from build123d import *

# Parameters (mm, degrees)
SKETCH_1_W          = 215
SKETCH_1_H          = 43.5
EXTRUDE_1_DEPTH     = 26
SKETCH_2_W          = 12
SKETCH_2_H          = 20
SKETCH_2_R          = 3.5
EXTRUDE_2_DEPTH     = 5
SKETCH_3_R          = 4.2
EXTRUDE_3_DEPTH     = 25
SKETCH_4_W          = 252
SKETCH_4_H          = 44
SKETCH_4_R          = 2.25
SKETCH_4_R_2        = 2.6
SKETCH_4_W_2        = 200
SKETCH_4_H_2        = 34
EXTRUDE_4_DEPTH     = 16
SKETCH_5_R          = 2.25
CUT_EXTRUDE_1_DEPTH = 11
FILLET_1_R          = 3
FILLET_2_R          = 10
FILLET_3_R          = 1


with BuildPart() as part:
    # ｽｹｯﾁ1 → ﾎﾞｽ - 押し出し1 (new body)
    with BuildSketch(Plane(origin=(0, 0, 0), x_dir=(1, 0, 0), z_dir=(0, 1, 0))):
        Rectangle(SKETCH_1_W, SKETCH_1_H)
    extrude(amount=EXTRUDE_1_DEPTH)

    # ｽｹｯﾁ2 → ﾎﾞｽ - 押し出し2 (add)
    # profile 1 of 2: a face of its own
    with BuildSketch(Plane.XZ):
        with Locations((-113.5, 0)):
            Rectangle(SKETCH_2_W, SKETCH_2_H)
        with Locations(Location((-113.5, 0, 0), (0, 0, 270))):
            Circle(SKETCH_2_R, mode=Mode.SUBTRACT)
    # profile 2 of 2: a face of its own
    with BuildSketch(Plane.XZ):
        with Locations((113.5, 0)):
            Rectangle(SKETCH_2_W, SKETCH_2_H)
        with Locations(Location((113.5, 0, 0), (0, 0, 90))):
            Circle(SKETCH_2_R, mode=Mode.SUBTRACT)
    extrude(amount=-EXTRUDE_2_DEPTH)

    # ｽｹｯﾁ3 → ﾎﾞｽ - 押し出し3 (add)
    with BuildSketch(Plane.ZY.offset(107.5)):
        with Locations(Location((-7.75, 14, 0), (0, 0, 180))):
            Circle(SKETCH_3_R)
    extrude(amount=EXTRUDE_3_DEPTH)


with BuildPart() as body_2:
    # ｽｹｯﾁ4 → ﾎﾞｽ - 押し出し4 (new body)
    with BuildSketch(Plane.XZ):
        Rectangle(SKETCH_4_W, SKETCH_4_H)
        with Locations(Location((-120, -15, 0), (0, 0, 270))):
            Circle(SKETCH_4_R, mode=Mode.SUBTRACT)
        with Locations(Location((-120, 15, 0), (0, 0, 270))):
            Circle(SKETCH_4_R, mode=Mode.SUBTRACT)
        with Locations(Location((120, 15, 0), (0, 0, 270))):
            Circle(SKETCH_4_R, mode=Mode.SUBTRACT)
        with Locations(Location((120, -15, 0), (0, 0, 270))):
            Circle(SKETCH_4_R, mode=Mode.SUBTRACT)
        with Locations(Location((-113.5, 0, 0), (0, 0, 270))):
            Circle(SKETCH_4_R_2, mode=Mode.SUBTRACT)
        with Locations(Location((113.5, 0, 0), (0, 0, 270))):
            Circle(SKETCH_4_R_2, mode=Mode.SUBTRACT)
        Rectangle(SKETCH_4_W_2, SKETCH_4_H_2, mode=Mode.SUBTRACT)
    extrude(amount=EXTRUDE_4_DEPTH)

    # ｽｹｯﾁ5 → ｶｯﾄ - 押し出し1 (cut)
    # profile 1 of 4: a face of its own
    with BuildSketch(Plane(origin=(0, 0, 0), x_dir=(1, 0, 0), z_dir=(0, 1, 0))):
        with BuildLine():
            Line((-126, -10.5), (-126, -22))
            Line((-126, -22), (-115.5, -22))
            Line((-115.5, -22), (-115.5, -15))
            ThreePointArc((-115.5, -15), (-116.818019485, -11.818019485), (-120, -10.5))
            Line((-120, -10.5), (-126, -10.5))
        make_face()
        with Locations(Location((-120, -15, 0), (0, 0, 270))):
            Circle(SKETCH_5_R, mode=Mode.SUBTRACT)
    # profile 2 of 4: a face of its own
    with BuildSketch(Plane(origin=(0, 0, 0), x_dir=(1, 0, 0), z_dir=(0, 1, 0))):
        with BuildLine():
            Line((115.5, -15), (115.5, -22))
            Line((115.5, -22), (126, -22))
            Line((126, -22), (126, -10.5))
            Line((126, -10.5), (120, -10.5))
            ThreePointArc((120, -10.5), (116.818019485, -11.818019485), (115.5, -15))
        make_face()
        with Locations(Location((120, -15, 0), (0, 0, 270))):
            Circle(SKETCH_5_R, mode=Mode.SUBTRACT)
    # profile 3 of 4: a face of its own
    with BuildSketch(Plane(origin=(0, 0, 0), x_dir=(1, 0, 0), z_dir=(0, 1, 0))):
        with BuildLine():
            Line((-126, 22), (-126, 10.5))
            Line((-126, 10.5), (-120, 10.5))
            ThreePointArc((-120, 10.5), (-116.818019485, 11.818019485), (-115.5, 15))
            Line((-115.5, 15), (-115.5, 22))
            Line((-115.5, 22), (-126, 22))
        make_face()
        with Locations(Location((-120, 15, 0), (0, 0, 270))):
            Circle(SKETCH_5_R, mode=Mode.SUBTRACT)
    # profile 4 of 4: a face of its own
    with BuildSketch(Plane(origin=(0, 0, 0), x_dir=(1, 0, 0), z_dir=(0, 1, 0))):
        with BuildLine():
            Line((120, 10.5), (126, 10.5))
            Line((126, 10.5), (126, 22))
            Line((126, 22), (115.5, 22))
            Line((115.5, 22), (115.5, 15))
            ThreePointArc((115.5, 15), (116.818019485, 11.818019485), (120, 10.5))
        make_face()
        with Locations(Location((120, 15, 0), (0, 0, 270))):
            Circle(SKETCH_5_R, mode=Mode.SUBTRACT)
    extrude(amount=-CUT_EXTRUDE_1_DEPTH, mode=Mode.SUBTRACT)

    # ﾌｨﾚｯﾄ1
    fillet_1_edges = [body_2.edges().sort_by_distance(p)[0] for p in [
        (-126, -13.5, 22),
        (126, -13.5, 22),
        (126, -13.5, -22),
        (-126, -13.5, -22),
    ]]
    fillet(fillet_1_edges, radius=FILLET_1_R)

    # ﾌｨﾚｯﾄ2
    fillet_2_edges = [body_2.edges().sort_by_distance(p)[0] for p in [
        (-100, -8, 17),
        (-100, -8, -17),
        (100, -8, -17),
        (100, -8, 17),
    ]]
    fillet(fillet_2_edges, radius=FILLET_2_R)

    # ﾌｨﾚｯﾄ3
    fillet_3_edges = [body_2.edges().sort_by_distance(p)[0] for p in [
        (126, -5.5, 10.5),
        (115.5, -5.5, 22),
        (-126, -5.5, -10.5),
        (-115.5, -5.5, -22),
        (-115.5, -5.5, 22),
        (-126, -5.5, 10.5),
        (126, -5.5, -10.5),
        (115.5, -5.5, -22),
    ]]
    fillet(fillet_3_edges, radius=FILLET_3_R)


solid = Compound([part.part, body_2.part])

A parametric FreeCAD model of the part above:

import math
import FreeCAD as App
import Part
import Sketcher

V = App.Vector
Q = App.Units.Quantity


def edges_at(feature, points):
    """Names of the edges that pass closest to the given points."""
    edges = feature.Shape.Edges
    near = lambda p: min(range(len(edges)), key=lambda i: edges[i].distToShape(Part.Vertex(*p))[0])
    return sorted({f"Edge{near(p) + 1}" for p in points})

doc = App.newDocument("Part")
body = doc.addObject("PartDesign::Body", "Body")

sketch1 = body.newObject("Sketcher::SketchObject", "Sketch")
sketch1.AttachmentSupport = (doc.getObject("XZ_Plane"), [""])
sketch1.MapMode = "FlatFace"
sketch1.addGeometry(Part.LineSegment(V(-107.5, -21.75, 0), V(-107.5, 21.75, 0)), False)
sketch1.addGeometry(Part.LineSegment(V(-107.5, 21.75, 0), V(107.5, 21.75, 0)), False)
sketch1.addGeometry(Part.LineSegment(V(107.5, 21.75, 0), V(107.5, -21.75, 0)), False)
sketch1.addGeometry(Part.LineSegment(V(107.5, -21.75, 0), V(-107.5, -21.75, 0)), False)
sketch1.addConstraint(Sketcher.Constraint("Coincident", 0, 2, 1, 1))
sketch1.addConstraint(Sketcher.Constraint("Coincident", 1, 2, 2, 1))
sketch1.addConstraint(Sketcher.Constraint("Coincident", 2, 2, 3, 1))
sketch1.addConstraint(Sketcher.Constraint("Coincident", 3, 2, 0, 1))
sketch1.addConstraint(Sketcher.Constraint("Vertical", 0))
sketch1.addConstraint(Sketcher.Constraint("Horizontal", 1))
sketch1.addConstraint(Sketcher.Constraint("Vertical", 2))
sketch1.addConstraint(Sketcher.Constraint("Horizontal", 3))
sketch1.addConstraint(Sketcher.Constraint("Symmetric", 0, 2, 2, 2, -1, 1))
sketch1.addConstraint(Sketcher.Constraint("DistanceX", 1, 1, 1, 2, Q("215 mm")))
sketch1.addConstraint(Sketcher.Constraint("DistanceY", 0, 1, 0, 2, Q("43.5 mm")))
pad1 = body.newObject("PartDesign::Pad", "Pad")
pad1.Profile = sketch1
pad1.Length = 26
pad1.Reversed = True

sketch2 = body.newObject("Sketcher::SketchObject", "Sketch001")
sketch2.AttachmentSupport = (doc.getObject("XZ_Plane"), [""])
sketch2.MapMode = "FlatFace"
sketch2.addGeometry(Part.LineSegment(V(-119.5, 10, 0), V(-119.5, -10, 0)), False)
sketch2.addGeometry(Part.LineSegment(V(-119.5, -10, 0), V(-107.5, -10, 0)), False)
sketch2.addGeometry(Part.LineSegment(V(-107.5, -10, 0), V(-107.5, 10, 0)), False)
sketch2.addGeometry(Part.LineSegment(V(-107.5, 10, 0), V(-119.5, 10, 0)), False)
sketch2.addGeometry(Part.Circle(V(-113.5, 0, 0), V(0, 0, 1), 3.5), False)
sketch2.addGeometry(Part.LineSegment(V(107.5, 10, 0), V(107.5, -10, 0)), False)
sketch2.addGeometry(Part.LineSegment(V(107.5, -10, 0), V(119.5, -10, 0)), False)
sketch2.addGeometry(Part.LineSegment(V(119.5, -10, 0), V(119.5, 10, 0)), False)
sketch2.addGeometry(Part.LineSegment(V(119.5, 10, 0), V(107.5, 10, 0)), False)
sketch2.addGeometry(Part.Circle(V(113.5, 0, 0), V(0, 0, 1), 3.5), False)
sketch2.addConstraint(Sketcher.Constraint("Coincident", 0, 2, 1, 1))
sketch2.addConstraint(Sketcher.Constraint("Coincident", 1, 2, 2, 1))
sketch2.addConstraint(Sketcher.Constraint("Coincident", 2, 2, 3, 1))
sketch2.addConstraint(Sketcher.Constraint("Coincident", 3, 2, 0, 1))
sketch2.addConstraint(Sketcher.Constraint("Coincident", 5, 2, 6, 1))
sketch2.addConstraint(Sketcher.Constraint("Coincident", 6, 2, 7, 1))
sketch2.addConstraint(Sketcher.Constraint("Coincident", 7, 2, 8, 1))
sketch2.addConstraint(Sketcher.Constraint("Coincident", 8, 2, 5, 1))
sketch2.addConstraint(Sketcher.Constraint("Vertical", 0))
sketch2.addConstraint(Sketcher.Constraint("Horizontal", 1))
sketch2.addConstraint(Sketcher.Constraint("Vertical", 2))
sketch2.addConstraint(Sketcher.Constraint("Horizontal", 3))
sketch2.addConstraint(Sketcher.Constraint("Vertical", 5))
sketch2.addConstraint(Sketcher.Constraint("Horizontal", 6))
sketch2.addConstraint(Sketcher.Constraint("Vertical", 7))
sketch2.addConstraint(Sketcher.Constraint("Horizontal", 8))
sketch2.addConstraint(Sketcher.Constraint("Equal", 4, 9))
sketch2.addConstraint(Sketcher.Constraint("Symmetric", 4, 3, 9, 3, -1, 1))
sketch2.addConstraint(Sketcher.Constraint("Symmetric", 2, 2, 5, 2, -1, 1))
sketch2.addConstraint(Sketcher.Constraint("Symmetric", 0, 2, 7, 2, -1, 1))
sketch2.addConstraint(Sketcher.Constraint("PointOnObject", 4, 3, -1))
sketch2.addConstraint(Sketcher.Constraint("Horizontal", 1, 2, 5, 2))
sketch2.addConstraint(Sketcher.Constraint("Diameter", 4, Q("7 mm")))
sketch2.addConstraint(Sketcher.Constraint("DistanceX", 1, 1, 1, 2, Q("12 mm")))
sketch2.addConstraint(Sketcher.Constraint("DistanceY", 0, 2, 0, 1, Q("20 mm")))
sketch2.addConstraint(Sketcher.Constraint("DistanceX", 4, 3, 9, 3, Q("227 mm")))
sketch2.addConstraint(Sketcher.Constraint("DistanceX", 0, 2, 4, 3, Q("6 mm")))
pad2 = body.newObject("PartDesign::Pad", "Pad001")
pad2.Profile = sketch2
pad2.Length = 5
pad2.Reversed = True

sketch3 = body.newObject("Sketcher::SketchObject", "Sketch002")
sketch3.AttachmentSupport = (doc.getObject("YZ_Plane"), [""])
sketch3.MapMode = "FlatFace"
sketch3.AttachmentOffset = App.Placement(V(0, 0, -107.5), App.Rotation())
sketch3.addGeometry(Part.Circle(V(14, -7.75, 0), V(0, 0, 1), 4.2), False)
sketch3.addConstraint(Sketcher.Constraint("Diameter", 0, Q("8.4 mm")))
sketch3.addConstraint(Sketcher.Constraint("DistanceX", -1, 1, 0, 3, Q("14 mm")))
sketch3.addConstraint(Sketcher.Constraint("DistanceY", 0, 3, -1, 1, Q("7.75 mm")))
pad3 = body.newObject("PartDesign::Pad", "Pad002")
pad3.Profile = sketch3
pad3.Length = 25
pad3.Reversed = True
body2 = doc.addObject("PartDesign::Body", "Body001")

sketch4 = body2.newObject("Sketcher::SketchObject", "Sketch003")
sketch4.AttachmentSupport = (doc.getObject("XZ_Plane001"), [""])
sketch4.MapMode = "FlatFace"
sketch4.addGeometry(Part.LineSegment(V(-126, 22, 0), V(-126, -22, 0)), False)
sketch4.addGeometry(Part.LineSegment(V(-126, -22, 0), V(126, -22, 0)), False)
sketch4.addGeometry(Part.LineSegment(V(126, -22, 0), V(126, 22, 0)), False)
sketch4.addGeometry(Part.LineSegment(V(126, 22, 0), V(-126, 22, 0)), False)
sketch4.addGeometry(Part.Circle(V(-120, -15, 0), V(0, 0, 1), 2.25), False)
sketch4.addGeometry(Part.Circle(V(120, -15, 0), V(0, 0, 1), 2.25), False)
sketch4.addGeometry(Part.Circle(V(-113.5, 0, 0), V(0, 0, 1), 2.6), False)
sketch4.addGeometry(Part.Circle(V(-120, 15, 0), V(0, 0, 1), 2.25), False)
sketch4.addGeometry(Part.LineSegment(V(100, -17, 0), V(-100, -17, 0)), False)
sketch4.addGeometry(Part.LineSegment(V(-100, -17, 0), V(-100, 17, 0)), False)
sketch4.addGeometry(Part.LineSegment(V(-100, 17, 0), V(100, 17, 0)), False)
sketch4.addGeometry(Part.LineSegment(V(100, 17, 0), V(100, -17, 0)), False)
sketch4.addGeometry(Part.Circle(V(113.5, 0, 0), V(0, 0, 1), 2.6), False)
sketch4.addGeometry(Part.Circle(V(120, 15, 0), V(0, 0, 1), 2.25), False)
sketch4.addConstraint(Sketcher.Constraint("Coincident", 0, 2, 1, 1))
sketch4.addConstraint(Sketcher.Constraint("Coincident", 1, 2, 2, 1))
sketch4.addConstraint(Sketcher.Constraint("Coincident", 2, 2, 3, 1))
sketch4.addConstraint(Sketcher.Constraint("Coincident", 3, 2, 0, 1))
sketch4.addConstraint(Sketcher.Constraint("Coincident", 8, 2, 9, 1))
sketch4.addConstraint(Sketcher.Constraint("Coincident", 9, 2, 10, 1))
sketch4.addConstraint(Sketcher.Constraint("Coincident", 10, 2, 11, 1))
sketch4.addConstraint(Sketcher.Constraint("Coincident", 11, 2, 8, 1))
sketch4.addConstraint(Sketcher.Constraint("Vertical", 0))
sketch4.addConstraint(Sketcher.Constraint("Horizontal", 1))
sketch4.addConstraint(Sketcher.Constraint("Vertical", 2))
sketch4.addConstraint(Sketcher.Constraint("Horizontal", 3))
sketch4.addConstraint(Sketcher.Constraint("Horizontal", 8))
sketch4.addConstraint(Sketcher.Constraint("Vertical", 9))
sketch4.addConstraint(Sketcher.Constraint("Horizontal", 10))
sketch4.addConstraint(Sketcher.Constraint("Vertical", 11))
sketch4.addConstraint(Sketcher.Constraint("Equal", 4, 5))
sketch4.addConstraint(Sketcher.Constraint("Equal", 5, 7))
sketch4.addConstraint(Sketcher.Constraint("Equal", 6, 12))
sketch4.addConstraint(Sketcher.Constraint("Equal", 7, 13))
sketch4.addConstraint(Sketcher.Constraint("Symmetric", 5, 3, 7, 3, -1, 1))
sketch4.addConstraint(Sketcher.Constraint("Symmetric", 6, 3, 12, 3, -1, 1))
sketch4.addConstraint(Sketcher.Constraint("Symmetric", 4, 3, 13, 3, -1, 1))
sketch4.addConstraint(Sketcher.Constraint("Symmetric", 0, 2, 2, 2, -1, 1))
sketch4.addConstraint(Sketcher.Constraint("Symmetric", 8, 2, 10, 2, -1, 1))
sketch4.addConstraint(Sketcher.Constraint("Symmetric", 4, 3, 5, 3, -2))
sketch4.addConstraint(Sketcher.Constraint("PointOnObject", 6, 3, -1))
sketch4.addConstraint(Sketcher.Constraint("Diameter", 4, Q("4.5 mm")))
sketch4.addConstraint(Sketcher.Constraint("Diameter", 6, Q("5.2 mm")))
sketch4.addConstraint(Sketcher.Constraint("DistanceX", 1, 1, 1, 2, Q("252 mm")))
sketch4.addConstraint(Sketcher.Constraint("DistanceX", 8, 2, 8, 1, Q("200 mm")))
sketch4.addConstraint(Sketcher.Constraint("DistanceY", 0, 2, 0, 1, Q("44 mm")))
sketch4.addConstraint(Sketcher.Constraint("DistanceY", 9, 1, 9, 2, Q("34 mm")))
sketch4.addConstraint(Sketcher.Constraint("DistanceX", 4, 3, -1, 1, Q("120 mm")))
sketch4.addConstraint(Sketcher.Constraint("DistanceY", 4, 3, -1, 1, Q("15 mm")))
sketch4.addConstraint(Sketcher.Constraint("DistanceX", 6, 3, 12, 3, Q("227 mm")))
pad4 = body2.newObject("PartDesign::Pad", "Pad003")
pad4.Profile = sketch4
pad4.Length = 16

sketch5 = body2.newObject("Sketcher::SketchObject", "Sketch004")
sketch5.AttachmentSupport = (doc.getObject("XZ_Plane001"), [""])
sketch5.MapMode = "FlatFace"
sketch5.addGeometry(Part.LineSegment(V(-126, 10.5, 0), V(-126, 22, 0)), False)
sketch5.addGeometry(Part.LineSegment(V(-126, 22, 0), V(-115.5, 22, 0)), False)
sketch5.addGeometry(Part.LineSegment(V(-115.5, 22, 0), V(-115.5, 15, 0)), False)
sketch5.addGeometry(Part.ArcOfCircle(Part.Circle(V(-120, 15, 0), V(0, 0, 1), 4.5), math.radians(-90), math.radians(0)), False)
sketch5.addGeometry(Part.LineSegment(V(-120, 10.5, 0), V(-126, 10.5, 0)), False)
sketch5.addGeometry(Part.Circle(V(-120, 15, 0), V(0, 0, 1), 2.25), False)
sketch5.addGeometry(Part.LineSegment(V(115.5, 15, 0), V(115.5, 22, 0)), False)
sketch5.addGeometry(Part.LineSegment(V(115.5, 22, 0), V(126, 22, 0)), False)
sketch5.addGeometry(Part.LineSegment(V(126, 22, 0), V(126, 10.5, 0)), False)
sketch5.addGeometry(Part.LineSegment(V(126, 10.5, 0), V(120, 10.5, 0)), False)
sketch5.addGeometry(Part.ArcOfCircle(Part.Circle(V(120, 15, 0), V(0, 0, 1), 4.5), math.radians(-180), math.radians(-90)), False)
sketch5.addGeometry(Part.Circle(V(120, 15, 0), V(0, 0, 1), 2.25), False)
sketch5.addGeometry(Part.LineSegment(V(-126, -22, 0), V(-126, -10.5, 0)), False)
sketch5.addGeometry(Part.LineSegment(V(-126, -10.5, 0), V(-120, -10.5, 0)), False)
sketch5.addGeometry(Part.ArcOfCircle(Part.Circle(V(-120, -15, 0), V(0, 0, 1), 4.5), math.radians(0), math.radians(90)), False)
sketch5.addGeometry(Part.LineSegment(V(-115.5, -15, 0), V(-115.5, -22, 0)), False)
sketch5.addGeometry(Part.LineSegment(V(-115.5, -22, 0), V(-126, -22, 0)), False)
sketch5.addGeometry(Part.Circle(V(-120, -15, 0), V(0, 0, 1), 2.25), False)
sketch5.addGeometry(Part.LineSegment(V(120, -10.5, 0), V(126, -10.5, 0)), False)
sketch5.addGeometry(Part.LineSegment(V(126, -10.5, 0), V(126, -22, 0)), False)
sketch5.addGeometry(Part.LineSegment(V(126, -22, 0), V(115.5, -22, 0)), False)
sketch5.addGeometry(Part.LineSegment(V(115.5, -22, 0), V(115.5, -15, 0)), False)
sketch5.addGeometry(Part.ArcOfCircle(Part.Circle(V(120, -15, 0), V(0, 0, 1), 4.5), math.radians(90), math.radians(180)), False)
sketch5.addGeometry(Part.Circle(V(120, -15, 0), V(0, 0, 1), 2.25), False)
sketch5.addConstraint(Sketcher.Constraint("Coincident", 0, 2, 1, 1))
sketch5.addConstraint(Sketcher.Constraint("Coincident", 1, 2, 2, 1))
sketch5.addConstraint(Sketcher.Constraint("Tangent", 2, 2, 3, 2))
sketch5.addConstraint(Sketcher.Constraint("Tangent", 3, 1, 4, 1))
sketch5.addConstraint(Sketcher.Constraint("Coincident", 4, 2, 0, 1))
sketch5.addConstraint(Sketcher.Constraint("Coincident", 6, 2, 7, 1))
sketch5.addConstraint(Sketcher.Constraint("Coincident", 7, 2, 8, 1))
sketch5.addConstraint(Sketcher.Constraint("Coincident", 8, 2, 9, 1))
sketch5.addConstraint(Sketcher.Constraint("Tangent", 9, 2, 10, 2))
sketch5.addConstraint(Sketcher.Constraint("Tangent", 10, 1, 6, 1))
sketch5.addConstraint(Sketcher.Constraint("Coincident", 12, 2, 13, 1))
sketch5.addConstraint(Sketcher.Constraint("Tangent", 13, 2, 14, 2))
sketch5.addConstraint(Sketcher.Constraint("Tangent", 14, 1, 15, 1))
sketch5.addConstraint(Sketcher.Constraint("Coincident", 15, 2, 16, 1))
sketch5.addConstraint(Sketcher.Constraint("Coincident", 16, 2, 12, 1))
sketch5.addConstraint(Sketcher.Constraint("Coincident", 18, 2, 19, 1))
sketch5.addConstraint(Sketcher.Constraint("Coincident", 19, 2, 20, 1))
sketch5.addConstraint(Sketcher.Constraint("Coincident", 20, 2, 21, 1))
sketch5.addConstraint(Sketcher.Constraint("Tangent", 21, 2, 22, 2))
sketch5.addConstraint(Sketcher.Constraint("Tangent", 22, 1, 18, 1))
sketch5.addConstraint(Sketcher.Constraint("Vertical", 0))
sketch5.addConstraint(Sketcher.Constraint("Horizontal", 1))
sketch5.addConstraint(Sketcher.Constraint("Vertical", 2))
sketch5.addConstraint(Sketcher.Constraint("Horizontal", 4))
sketch5.addConstraint(Sketcher.Constraint("Vertical", 6))
sketch5.addConstraint(Sketcher.Constraint("Horizontal", 7))
sketch5.addConstraint(Sketcher.Constraint("Vertical", 8))
sketch5.addConstraint(Sketcher.Constraint("Horizontal", 9))
sketch5.addConstraint(Sketcher.Constraint("Vertical", 12))
sketch5.addConstraint(Sketcher.Constraint("Horizontal", 13))
sketch5.addConstraint(Sketcher.Constraint("Vertical", 15))
sketch5.addConstraint(Sketcher.Constraint("Horizontal", 16))
sketch5.addConstraint(Sketcher.Constraint("Horizontal", 18))
sketch5.addConstraint(Sketcher.Constraint("Vertical", 19))
sketch5.addConstraint(Sketcher.Constraint("Horizontal", 20))
sketch5.addConstraint(Sketcher.Constraint("Vertical", 21))
sketch5.addConstraint(Sketcher.Constraint("Coincident", 5, 3, 3, 3))
sketch5.addConstraint(Sketcher.Constraint("Coincident", 11, 3, 10, 3))
sketch5.addConstraint(Sketcher.Constraint("Coincident", 17, 3, 14, 3))
sketch5.addConstraint(Sketcher.Constraint("Coincident", 23, 3, 22, 3))
sketch5.addConstraint(Sketcher.Constraint("Equal", 3, 10))
sketch5.addConstraint(Sketcher.Constraint("Equal", 5, 11))
sketch5.addConstraint(Sketcher.Constraint("Equal", 10, 14))
sketch5.addConstraint(Sketcher.Constraint("Equal", 11, 17))
sketch5.addConstraint(Sketcher.Constraint("Equal", 14, 22))
sketch5.addConstraint(Sketcher.Constraint("Equal", 17, 23))
sketch5.addConstraint(Sketcher.Constraint("Symmetric", 10, 3, 14, 3, -1, 1))
sketch5.addConstraint(Sketcher.Constraint("Symmetric", 3, 3, 22, 3, -1, 1))
sketch5.addConstraint(Sketcher.Constraint("Symmetric", 7, 2, 16, 2, -1, 1))
sketch5.addConstraint(Sketcher.Constraint("Symmetric", 0, 2, 19, 2, -1, 1))
sketch5.addConstraint(Sketcher.Constraint("Symmetric", 3, 3, 10, 3, -2))
sketch5.addConstraint(Sketcher.Constraint("Symmetric", 0, 2, 7, 2, -2))
sketch5.addConstraint(Sketcher.Constraint("Diameter", 5, Q("4.5 mm")))
sketch5.addConstraint(Sketcher.Constraint("Radius", 3, Q("4.5 mm")))
sketch5.addConstraint(Sketcher.Constraint("DistanceX", 4, 2, 4, 1, Q("6 mm")))
sketch5.addConstraint(Sketcher.Constraint("DistanceY", 2, 2, 2, 1, Q("7 mm")))
sketch5.addConstraint(Sketcher.Constraint("DistanceX", 3, 3, -1, 1, Q("120 mm")))
sketch5.addConstraint(Sketcher.Constraint("DistanceY", -1, 1, 3, 3, Q("15 mm")))
pocket1 = body2.newObject("PartDesign::Pocket", "Pocket")
pocket1.Profile = sketch5
pocket1.Length = 11
pocket1.Reversed = True
doc.recompute()

fillet = body2.newObject("PartDesign::Fillet", "Fillet")
fillet.Base = (pocket1, edges_at(pocket1, [
    (-126, -13.5, 22),
    (126, -13.5, 22),
    (126, -13.5, -22),
    (-126, -13.5, -22),
]))
fillet.Radius = 3
doc.recompute()

fillet2 = body2.newObject("PartDesign::Fillet", "Fillet001")
fillet2.Base = (fillet, edges_at(fillet, [
    (-100, -8, 17),
    (-100, -8, -17),
    (100, -8, -17),
    (100, -8, 17),
]))
fillet2.Radius = 10
doc.recompute()

fillet3 = body2.newObject("PartDesign::Fillet", "Fillet002")
fillet3.Base = (fillet2, edges_at(fillet2, [
    (126, -5.5, 10.5),
    (115.5, -5.5, 22),
    (-126, -5.5, -10.5),
    (-115.5, -5.5, -22),
    (-115.5, -5.5, 22),
    (-126, -5.5, 10.5),
    (126, -5.5, -10.5),
    (115.5, -5.5, -22),
]))
fillet3.Radius = 1

doc.recompute()
